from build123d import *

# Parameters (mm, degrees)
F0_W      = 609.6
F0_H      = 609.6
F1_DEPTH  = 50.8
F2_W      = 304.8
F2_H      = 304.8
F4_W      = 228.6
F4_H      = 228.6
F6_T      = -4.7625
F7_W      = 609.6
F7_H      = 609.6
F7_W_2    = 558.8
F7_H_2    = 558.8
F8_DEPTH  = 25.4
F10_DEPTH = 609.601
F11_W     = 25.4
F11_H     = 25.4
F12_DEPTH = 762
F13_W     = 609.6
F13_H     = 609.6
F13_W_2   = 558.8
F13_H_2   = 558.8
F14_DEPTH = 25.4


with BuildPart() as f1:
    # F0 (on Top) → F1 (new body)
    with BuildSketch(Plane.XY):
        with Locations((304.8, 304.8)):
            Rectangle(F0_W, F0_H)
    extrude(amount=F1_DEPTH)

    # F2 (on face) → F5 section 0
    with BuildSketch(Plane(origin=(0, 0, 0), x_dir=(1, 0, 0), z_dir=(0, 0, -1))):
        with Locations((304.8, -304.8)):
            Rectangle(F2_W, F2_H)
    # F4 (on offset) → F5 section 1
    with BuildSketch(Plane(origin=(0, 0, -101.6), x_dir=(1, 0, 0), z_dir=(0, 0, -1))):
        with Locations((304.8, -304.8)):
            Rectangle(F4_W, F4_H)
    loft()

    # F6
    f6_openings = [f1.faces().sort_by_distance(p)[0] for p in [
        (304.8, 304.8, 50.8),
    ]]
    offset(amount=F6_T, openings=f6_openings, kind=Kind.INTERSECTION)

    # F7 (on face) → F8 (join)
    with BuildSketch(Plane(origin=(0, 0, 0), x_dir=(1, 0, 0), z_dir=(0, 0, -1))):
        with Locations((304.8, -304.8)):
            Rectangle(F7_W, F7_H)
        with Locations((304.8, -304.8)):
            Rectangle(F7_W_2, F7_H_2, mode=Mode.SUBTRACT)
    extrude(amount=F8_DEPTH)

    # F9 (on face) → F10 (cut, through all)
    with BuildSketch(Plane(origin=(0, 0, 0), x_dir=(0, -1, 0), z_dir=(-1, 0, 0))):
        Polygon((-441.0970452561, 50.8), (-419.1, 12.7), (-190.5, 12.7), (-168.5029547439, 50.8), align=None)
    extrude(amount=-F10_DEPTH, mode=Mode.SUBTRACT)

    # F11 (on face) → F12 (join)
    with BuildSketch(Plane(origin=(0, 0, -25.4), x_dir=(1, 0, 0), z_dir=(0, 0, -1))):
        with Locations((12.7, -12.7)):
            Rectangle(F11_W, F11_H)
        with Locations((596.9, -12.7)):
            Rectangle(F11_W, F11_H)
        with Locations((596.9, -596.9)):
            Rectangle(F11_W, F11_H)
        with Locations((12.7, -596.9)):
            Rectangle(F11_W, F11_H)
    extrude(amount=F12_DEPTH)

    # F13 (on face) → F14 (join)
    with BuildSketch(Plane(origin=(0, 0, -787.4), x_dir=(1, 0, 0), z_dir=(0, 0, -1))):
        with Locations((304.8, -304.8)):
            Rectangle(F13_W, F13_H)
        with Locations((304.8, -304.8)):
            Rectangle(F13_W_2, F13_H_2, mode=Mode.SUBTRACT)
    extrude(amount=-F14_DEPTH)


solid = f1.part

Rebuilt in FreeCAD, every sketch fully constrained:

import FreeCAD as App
import Part
import Sketcher

V = App.Vector
Q = App.Units.Quantity


def faces_at(feature, points):
    """Names of the faces that lie closest to the given points."""
    faces = feature.Shape.Faces
    near = lambda p: min(range(len(faces)), key=lambda i: faces[i].distToShape(Part.Vertex(*p))[0])
    return sorted({f"Face{near(p) + 1}" for p in points})

doc = App.newDocument("Part")
body = doc.addObject("PartDesign::Body", "Body")

sketch1 = doc.addObject("Sketcher::SketchObject", "Sketch")
body.addObject(sketch1)
sketch1.AttachmentSupport = (doc.XY_Plane, [""])
sketch1.MapMode = "FlatFace"
sketch1.addGeometry([
    Part.LineSegment(V(0, 609.6, 0), V(0, 0, 0)),
    Part.LineSegment(V(0, 0, 0), V(609.6, 0, 0)),
    Part.LineSegment(V(609.6, 0, 0), V(609.6, 609.6, 0)),
    Part.LineSegment(V(609.6, 609.6, 0), V(0, 609.6, 0)),
], False)
sketch1.addConstraint([
    Sketcher.Constraint("Coincident", 0, 2, 1, 1),
    Sketcher.Constraint("Coincident", 1, 2, 2, 1),
    Sketcher.Constraint("Coincident", 2, 2, 3, 1),
    Sketcher.Constraint("Coincident", 3, 2, 0, 1),
    Sketcher.Constraint("Vertical", 0),
    Sketcher.Constraint("Horizontal", 1),
    Sketcher.Constraint("Vertical", 2),
    Sketcher.Constraint("Horizontal", 3),
    Sketcher.Constraint("Coincident", 0, 2, -1, 1),
    Sketcher.Constraint("Equal", 3, 0),
    Sketcher.Constraint("DistanceX", 1, 1, 1, 2, Q("24 in")),
])
pad1 = doc.addObject("PartDesign::Pad", "Pad")
body.addObject(pad1)
pad1.Profile = sketch1
pad1.Length = Q("2 in")

sketch2 = doc.addObject("Sketcher::SketchObject", "Sketch001")
body.addObject(sketch2)
sketch2.AttachmentSupport = (doc.XY_Plane, [""])
sketch2.MapMode = "FlatFace"
sketch2.addGeometry([
    Part.LineSegment(V(152.4, 152.4, 0), V(152.4, 457.2, 0)),
    Part.LineSegment(V(152.4, 457.2, 0), V(457.2, 457.2, 0)),
    Part.LineSegment(V(457.2, 457.2, 0), V(457.2, 152.4, 0)),
    Part.LineSegment(V(457.2, 152.4, 0), V(152.4, 152.4, 0)),
], False)
sketch2.addConstraint([
    Sketcher.Constraint("Coincident", 0, 2, 1, 1),
    Sketcher.Constraint("Coincident", 1, 2, 2, 1),
    Sketcher.Constraint("Coincident", 2, 2, 3, 1),
    Sketcher.Constraint("Coincident", 3, 2, 0, 1),
    Sketcher.Constraint("Vertical", 0),
    Sketcher.Constraint("Horizontal", 1),
    Sketcher.Constraint("Vertical", 2),
    Sketcher.Constraint("Horizontal", 3),
    Sketcher.Constraint("Equal", 3, 0),
    Sketcher.Constraint("DistanceX", 1, 1, 1, 2, Q("12 in")),
    Sketcher.Constraint("DistanceX", -1, 1, 0, 2, Q("6 in")),
    Sketcher.Constraint("DistanceY", -1, 1, 0, 2, Q("18 in")),
])

sketch3 = doc.addObject("Sketcher::SketchObject", "Sketch002")
body.addObject(sketch3)
sketch3.AttachmentSupport = (doc.XY_Plane, [""])
sketch3.MapMode = "FlatFace"
sketch3.AttachmentOffset = App.Placement(V(0, 0, -4 * 25.4), App.Rotation())
sketch3.addGeometry([
    Part.LineSegment(V(190.5, 190.5, 0), V(190.5, 419.1, 0)),
    Part.LineSegment(V(190.5, 419.1, 0), V(419.1, 419.1, 0)),
    Part.LineSegment(V(419.1, 419.1, 0), V(419.1, 190.5, 0)),
    Part.LineSegment(V(419.1, 190.5, 0), V(190.5, 190.5, 0)),
], False)
sketch3.addConstraint([
    Sketcher.Constraint("Coincident", 0, 2, 1, 1),
    Sketcher.Constraint("Coincident", 1, 2, 2, 1),
    Sketcher.Constraint("Coincident", 2, 2, 3, 1),
    Sketcher.Constraint("Coincident", 3, 2, 0, 1),
    Sketcher.Constraint("Vertical", 0),
    Sketcher.Constraint("Horizontal", 1),
    Sketcher.Constraint("Vertical", 2),
    Sketcher.Constraint("Horizontal", 3),
    Sketcher.Constraint("Equal", 3, 0),
    Sketcher.Constraint("DistanceX", 1, 1, 1, 2, Q("9 in")),
    Sketcher.Constraint("DistanceX", -1, 1, 0, 2, Q("7.5 in")),
    Sketcher.Constraint("DistanceY", -1, 1, 0, 2, Q("16.5 in")),
])

additiveloft = doc.addObject("PartDesign::AdditiveLoft", "AdditiveLoft")
body.addObject(additiveloft)
additiveloft.Profile = sketch2
additiveloft.Sections = [sketch3]
doc.recompute()

thickness = doc.addObject("PartDesign::Thickness", "Thickness")
body.addObject(thickness)
thickness.Base = (additiveloft, faces_at(additiveloft, [(304.8, 304.8, 50.8)]))
thickness.Value = Q("0.1875 in")
thickness.Reversed = True
thickness.Join = "Intersection"

sketch4 = doc.addObject("Sketcher::SketchObject", "Sketch003")
body.addObject(sketch4)
sketch4.AttachmentSupport = (doc.XY_Plane, [""])
sketch4.MapMode = "FlatFace"
sketch4.addGeometry([
    Part.LineSegment(V(0, 0, 0), V(0, 609.6, 0)),
    Part.LineSegment(V(0, 609.6, 0), V(609.6, 609.6, 0)),
    Part.LineSegment(V(609.6, 609.6, 0), V(609.6, 0, 0)),
    Part.LineSegment(V(609.6, 0, 0), V(0, 0, 0)),
    Part.LineSegment(V(584.2, 584.2, 0), V(25.4, 584.2, 0)),
    Part.LineSegment(V(25.4, 584.2, 0), V(25.4, 25.4, 0)),
    Part.LineSegment(V(25.4, 25.4, 0), V(584.2, 25.4, 0)),
    Part.LineSegment(V(584.2, 25.4, 0), V(584.2, 584.2, 0)),
], False)
sketch4.addConstraint([
    Sketcher.Constraint("Coincident", 0, 2, 1, 1),
    Sketcher.Constraint("Coincident", 1, 2, 2, 1),
    Sketcher.Constraint("Coincident", 2, 2, 3, 1),
    Sketcher.Constraint("Coincident", 3, 2, 0, 1),
    Sketcher.Constraint("Coincident", 4, 2, 5, 1),
    Sketcher.Constraint("Coincident", 5, 2, 6, 1),
    Sketcher.Constraint("Coincident", 6, 2, 7, 1),
    Sketcher.Constraint("Coincident", 7, 2, 4, 1),
    Sketcher.Constraint("Vertical", 0),
    Sketcher.Constraint("Horizontal", 1),
    Sketcher.Constraint("Vertical", 2),
    Sketcher.Constraint("Horizontal", 3),
    Sketcher.Constraint("Horizontal", 4),
    Sketcher.Constraint("Vertical", 5),
    Sketcher.Constraint("Horizontal", 6),
    Sketcher.Constraint("Vertical", 7),
    Sketcher.Constraint("Coincident", 3, 2, -1, 1),
    Sketcher.Constraint("Equal", 3, 0),
    Sketcher.Constraint("Equal", 6, 5),
    Sketcher.Constraint("DistanceX", 1, 1, 1, 2, Q("24 in")),
    Sketcher.Constraint("DistanceX", 4, 2, 4, 1, Q("22 in")),
    Sketcher.Constraint("DistanceX", -1, 1, 4, 2, Q("1 in")),
    Sketcher.Constraint("DistanceY", -1, 1, 4, 2, Q("23 in")),
])
pad2 = doc.addObject("PartDesign::Pad", "Pad001")
body.addObject(pad2)
pad2.Profile = sketch4
pad2.Length = Q("1 in")
pad2.Reversed = True

sketch5 = doc.addObject("Sketcher::SketchObject", "Sketch004")
body.addObject(sketch5)
sketch5.AttachmentSupport = (doc.YZ_Plane, [""])
sketch5.MapMode = "FlatFace"
sketch5.addGeometry([
    Part.LineSegment(V(441.097045, 50.8, 0), V(419.1, 12.7, 0)),
    Part.LineSegment(V(419.1, 12.7, 0), V(190.5, 12.7, 0)),
    Part.LineSegment(V(190.5, 12.7, 0), V(168.502955, 50.8, 0)),
    Part.LineSegment(V(168.502955, 50.8, 0), V(441.097045, 50.8, 0)),
], False)
sketch5.addConstraint([
    Sketcher.Constraint("Coincident", 0, 2, 1, 1),
    Sketcher.Constraint("Coincident", 1, 2, 2, 1),
    Sketcher.Constraint("Coincident", 2, 2, 3, 1),
    Sketcher.Constraint("Coincident", 3, 2, 0, 1),
    Sketcher.Constraint("Horizontal", 1),
    Sketcher.Constraint("Horizontal", 3),
    Sketcher.Constraint("Equal", 0, 2),
    Sketcher.Constraint("DistanceX", 1, 2, 1, 1, Q("9 in")),
    Sketcher.Constraint("DistanceY", -1, 1, 2, 2, Q("2 in")),
    Sketcher.Constraint("Angle", 0, Q("-120 deg")),
    Sketcher.Constraint("DistanceX", -1, 1, 0, 2, Q("16.5 in")),
    Sketcher.Constraint("DistanceY", -1, 1, 0, 2, Q("0.5 in")),
])
pocket1 = doc.addObject("PartDesign::Pocket", "Pocket")
body.addObject(pocket1)
pocket1.Profile = sketch5
pocket1.Type = "ThroughAll"
pocket1.Reversed = True

sketch6 = doc.addObject("Sketcher::SketchObject", "Sketch005")
body.addObject(sketch6)
sketch6.AttachmentSupport = (doc.XY_Plane, [""])
sketch6.MapMode = "FlatFace"
sketch6.AttachmentOffset = App.Placement(V(0, 0, -1 * 25.4), App.Rotation())
sketch6.addGeometry([
    Part.LineSegment(V(0, 0, 0), V(0, 25.4, 0)),
    Part.LineSegment(V(0, 25.4, 0), V(25.4, 25.4, 0)),
    Part.LineSegment(V(25.4, 25.4, 0), V(25.4, 0, 0)),
    Part.LineSegment(V(25.4, 0, 0), V(0, 0, 0)),
    Part.LineSegment(V(584.2, 0, 0), V(584.2, 25.4, 0)),
    Part.LineSegment(V(584.2, 25.4, 0), V(609.6, 25.4, 0)),
    Part.LineSegment(V(609.6, 25.4, 0), V(609.6, 0, 0)),
    Part.LineSegment(V(609.6, 0, 0), V(584.2, 0, 0)),
    Part.LineSegment(V(584.2, 584.2, 0), V(584.2, 609.6, 0)),
    Part.LineSegment(V(584.2, 609.6, 0), V(609.6, 609.6, 0)),
    Part.LineSegment(V(609.6, 609.6, 0), V(609.6, 584.2, 0)),
    Part.LineSegment(V(609.6, 584.2, 0), V(584.2, 584.2, 0)),
    Part.LineSegment(V(0, 584.2, 0), V(0, 609.6, 0)),
    Part.LineSegment(V(0, 609.6, 0), V(25.4, 609.6, 0)),
    Part.LineSegment(V(25.4, 609.6, 0), V(25.4, 584.2, 0)),
    Part.LineSegment(V(25.4, 584.2, 0), V(0, 584.2, 0)),
], False)
sketch6.addConstraint([
    Sketcher.Constraint("Coincident", 0, 2, 1, 1),
    Sketcher.Constraint("Coincident", 1, 2, 2, 1),
    Sketcher.Constraint("Coincident", 2, 2, 3, 1),
    Sketcher.Constraint("Coincident", 3, 2, 0, 1),
    Sketcher.Constraint("Coincident", 4, 2, 5, 1),
    Sketcher.Constraint("Coincident", 5, 2, 6, 1),
    Sketcher.Constraint("Coincident", 6, 2, 7, 1),
    Sketcher.Constraint("Coincident", 7, 2, 4, 1),
    Sketcher.Constraint("Coincident", 8, 2, 9, 1),
    Sketcher.Constraint("Coincident", 9, 2, 10, 1),
    Sketcher.Constraint("Coincident", 10, 2, 11, 1),
    Sketcher.Constraint("Coincident", 11, 2, 8, 1),
    Sketcher.Constraint("Coincident", 12, 2, 13, 1),
    Sketcher.Constraint("Coincident", 13, 2, 14, 1),
    Sketcher.Constraint("Coincident", 14, 2, 15, 1),
    Sketcher.Constraint("Coincident", 15, 2, 12, 1),
    Sketcher.Constraint("Vertical", 0),
    Sketcher.Constraint("Horizontal", 1),
    Sketcher.Constraint("Vertical", 2),
    Sketcher.Constraint("Horizontal", 3),
    Sketcher.Constraint("Vertical", 4),
    Sketcher.Constraint("Horizontal", 5),
    Sketcher.Constraint("Vertical", 6),
    Sketcher.Constraint("Horizontal", 7),
    Sketcher.Constraint("Vertical", 8),
    Sketcher.Constraint("Horizontal", 9),
    Sketcher.Constraint("Vertical", 10),
    Sketcher.Constraint("Horizontal", 11),
    Sketcher.Constraint("Vertical", 12),
    Sketcher.Constraint("Horizontal", 13),
    Sketcher.Constraint("Vertical", 14),
    Sketcher.Constraint("Horizontal", 15),
    Sketcher.Constraint("Coincident", 3, 2, -1, 1),
    Sketcher.Constraint("PointOnObject", 6, 2, -1),
    Sketcher.Constraint("PointOnObject", 12, 2, -2),
    Sketcher.Constraint("Horizontal", 1, 2, 4, 2),
    Sketcher.Constraint("Horizontal", 9, 2, 12, 2),
    Sketcher.Constraint("Horizontal", 11, 2, 14, 2),
    Sketcher.Constraint("Vertical", 7, 2, 8, 2),
    Sketcher.Constraint("Vertical", 6, 2, 9, 2),
    Sketcher.Constraint("Vertical", 2, 2, 13, 2),
    Sketcher.Constraint("Equal", 3, 5),
    Sketcher.Constraint("Equal", 15, 0),
    Sketcher.Constraint("Equal", 6, 8),
    Sketcher.Constraint("DistanceX", 1, 1, 1, 2, Q("1 in")),
    Sketcher.Constraint("DistanceX", -1, 1, 4, 2, Q("23 in")),
    Sketcher.Constraint("DistanceY", -1, 1, 8, 2, Q("24 in")),
])
pad3 = doc.addObject("PartDesign::Pad", "Pad002")
body.addObject(pad3)
pad3.Profile = sketch6
pad3.Length = Q("30 in")
pad3.Reversed = True

sketch7 = doc.addObject("Sketcher::SketchObject", "Sketch006")
body.addObject(sketch7)
sketch7.AttachmentSupport = (doc.XY_Plane, [""])
sketch7.MapMode = "FlatFace"
sketch7.AttachmentOffset = App.Placement(V(0, 0, -31 * 25.4), App.Rotation())
sketch7.addGeometry([
    Part.LineSegment(V(0, 0, 0), V(0, 609.6, 0)),
    Part.LineSegment(V(0, 609.6, 0), V(609.6, 609.6, 0)),
    Part.LineSegment(V(609.6, 609.6, 0), V(609.6, 0, 0)),
    Part.LineSegment(V(609.6, 0, 0), V(0, 0, 0)),
    Part.LineSegment(V(584.2, 584.2, 0), V(25.4, 584.2, 0)),
    Part.LineSegment(V(25.4, 584.2, 0), V(25.4, 25.4, 0)),
    Part.LineSegment(V(25.4, 25.4, 0), V(584.2, 25.4, 0)),
    Part.LineSegment(V(584.2, 25.4, 0), V(584.2, 584.2, 0)),
], False)
sketch7.addConstraint([
    Sketcher.Constraint("Coincident", 0, 2, 1, 1),
    Sketcher.Constraint("Coincident", 1, 2, 2, 1),
    Sketcher.Constraint("Coincident", 2, 2, 3, 1),
    Sketcher.Constraint("Coincident", 3, 2, 0, 1),
    Sketcher.Constraint("Coincident", 4, 2, 5, 1),
    Sketcher.Constraint("Coincident", 5, 2, 6, 1),
    Sketcher.Constraint("Coincident", 6, 2, 7, 1),
    Sketcher.Constraint("Coincident", 7, 2, 4, 1),
    Sketcher.Constraint("Vertical", 0),
    Sketcher.Constraint("Horizontal", 1),
    Sketcher.Constraint("Vertical", 2),
    Sketcher.Constraint("Horizontal", 3),
    Sketcher.Constraint("Horizontal", 4),
    Sketcher.Constraint("Vertical", 5),
    Sketcher.Constraint("Horizontal", 6),
    Sketcher.Constraint("Vertical", 7),
    Sketcher.Constraint("Coincident", 3, 2, -1, 1),
    Sketcher.Constraint("Equal", 3, 0),
    Sketcher.Constraint("Equal", 6, 5),
    Sketcher.Constraint("DistanceX", 1, 1, 1, 2, Q("24 in")),
    Sketcher.Constraint("DistanceX", 4, 2, 4, 1, Q("22 in")),
    Sketcher.Constraint("DistanceX", -1, 1, 4, 2, Q("1 in")),
    Sketcher.Constraint("DistanceY", -1, 1, 4, 2, Q("23 in")),
])
pad4 = doc.addObject("PartDesign::Pad", "Pad003")
body.addObject(pad4)
pad4.Profile = sketch7
pad4.Length = Q("1 in")

doc.recompute()
